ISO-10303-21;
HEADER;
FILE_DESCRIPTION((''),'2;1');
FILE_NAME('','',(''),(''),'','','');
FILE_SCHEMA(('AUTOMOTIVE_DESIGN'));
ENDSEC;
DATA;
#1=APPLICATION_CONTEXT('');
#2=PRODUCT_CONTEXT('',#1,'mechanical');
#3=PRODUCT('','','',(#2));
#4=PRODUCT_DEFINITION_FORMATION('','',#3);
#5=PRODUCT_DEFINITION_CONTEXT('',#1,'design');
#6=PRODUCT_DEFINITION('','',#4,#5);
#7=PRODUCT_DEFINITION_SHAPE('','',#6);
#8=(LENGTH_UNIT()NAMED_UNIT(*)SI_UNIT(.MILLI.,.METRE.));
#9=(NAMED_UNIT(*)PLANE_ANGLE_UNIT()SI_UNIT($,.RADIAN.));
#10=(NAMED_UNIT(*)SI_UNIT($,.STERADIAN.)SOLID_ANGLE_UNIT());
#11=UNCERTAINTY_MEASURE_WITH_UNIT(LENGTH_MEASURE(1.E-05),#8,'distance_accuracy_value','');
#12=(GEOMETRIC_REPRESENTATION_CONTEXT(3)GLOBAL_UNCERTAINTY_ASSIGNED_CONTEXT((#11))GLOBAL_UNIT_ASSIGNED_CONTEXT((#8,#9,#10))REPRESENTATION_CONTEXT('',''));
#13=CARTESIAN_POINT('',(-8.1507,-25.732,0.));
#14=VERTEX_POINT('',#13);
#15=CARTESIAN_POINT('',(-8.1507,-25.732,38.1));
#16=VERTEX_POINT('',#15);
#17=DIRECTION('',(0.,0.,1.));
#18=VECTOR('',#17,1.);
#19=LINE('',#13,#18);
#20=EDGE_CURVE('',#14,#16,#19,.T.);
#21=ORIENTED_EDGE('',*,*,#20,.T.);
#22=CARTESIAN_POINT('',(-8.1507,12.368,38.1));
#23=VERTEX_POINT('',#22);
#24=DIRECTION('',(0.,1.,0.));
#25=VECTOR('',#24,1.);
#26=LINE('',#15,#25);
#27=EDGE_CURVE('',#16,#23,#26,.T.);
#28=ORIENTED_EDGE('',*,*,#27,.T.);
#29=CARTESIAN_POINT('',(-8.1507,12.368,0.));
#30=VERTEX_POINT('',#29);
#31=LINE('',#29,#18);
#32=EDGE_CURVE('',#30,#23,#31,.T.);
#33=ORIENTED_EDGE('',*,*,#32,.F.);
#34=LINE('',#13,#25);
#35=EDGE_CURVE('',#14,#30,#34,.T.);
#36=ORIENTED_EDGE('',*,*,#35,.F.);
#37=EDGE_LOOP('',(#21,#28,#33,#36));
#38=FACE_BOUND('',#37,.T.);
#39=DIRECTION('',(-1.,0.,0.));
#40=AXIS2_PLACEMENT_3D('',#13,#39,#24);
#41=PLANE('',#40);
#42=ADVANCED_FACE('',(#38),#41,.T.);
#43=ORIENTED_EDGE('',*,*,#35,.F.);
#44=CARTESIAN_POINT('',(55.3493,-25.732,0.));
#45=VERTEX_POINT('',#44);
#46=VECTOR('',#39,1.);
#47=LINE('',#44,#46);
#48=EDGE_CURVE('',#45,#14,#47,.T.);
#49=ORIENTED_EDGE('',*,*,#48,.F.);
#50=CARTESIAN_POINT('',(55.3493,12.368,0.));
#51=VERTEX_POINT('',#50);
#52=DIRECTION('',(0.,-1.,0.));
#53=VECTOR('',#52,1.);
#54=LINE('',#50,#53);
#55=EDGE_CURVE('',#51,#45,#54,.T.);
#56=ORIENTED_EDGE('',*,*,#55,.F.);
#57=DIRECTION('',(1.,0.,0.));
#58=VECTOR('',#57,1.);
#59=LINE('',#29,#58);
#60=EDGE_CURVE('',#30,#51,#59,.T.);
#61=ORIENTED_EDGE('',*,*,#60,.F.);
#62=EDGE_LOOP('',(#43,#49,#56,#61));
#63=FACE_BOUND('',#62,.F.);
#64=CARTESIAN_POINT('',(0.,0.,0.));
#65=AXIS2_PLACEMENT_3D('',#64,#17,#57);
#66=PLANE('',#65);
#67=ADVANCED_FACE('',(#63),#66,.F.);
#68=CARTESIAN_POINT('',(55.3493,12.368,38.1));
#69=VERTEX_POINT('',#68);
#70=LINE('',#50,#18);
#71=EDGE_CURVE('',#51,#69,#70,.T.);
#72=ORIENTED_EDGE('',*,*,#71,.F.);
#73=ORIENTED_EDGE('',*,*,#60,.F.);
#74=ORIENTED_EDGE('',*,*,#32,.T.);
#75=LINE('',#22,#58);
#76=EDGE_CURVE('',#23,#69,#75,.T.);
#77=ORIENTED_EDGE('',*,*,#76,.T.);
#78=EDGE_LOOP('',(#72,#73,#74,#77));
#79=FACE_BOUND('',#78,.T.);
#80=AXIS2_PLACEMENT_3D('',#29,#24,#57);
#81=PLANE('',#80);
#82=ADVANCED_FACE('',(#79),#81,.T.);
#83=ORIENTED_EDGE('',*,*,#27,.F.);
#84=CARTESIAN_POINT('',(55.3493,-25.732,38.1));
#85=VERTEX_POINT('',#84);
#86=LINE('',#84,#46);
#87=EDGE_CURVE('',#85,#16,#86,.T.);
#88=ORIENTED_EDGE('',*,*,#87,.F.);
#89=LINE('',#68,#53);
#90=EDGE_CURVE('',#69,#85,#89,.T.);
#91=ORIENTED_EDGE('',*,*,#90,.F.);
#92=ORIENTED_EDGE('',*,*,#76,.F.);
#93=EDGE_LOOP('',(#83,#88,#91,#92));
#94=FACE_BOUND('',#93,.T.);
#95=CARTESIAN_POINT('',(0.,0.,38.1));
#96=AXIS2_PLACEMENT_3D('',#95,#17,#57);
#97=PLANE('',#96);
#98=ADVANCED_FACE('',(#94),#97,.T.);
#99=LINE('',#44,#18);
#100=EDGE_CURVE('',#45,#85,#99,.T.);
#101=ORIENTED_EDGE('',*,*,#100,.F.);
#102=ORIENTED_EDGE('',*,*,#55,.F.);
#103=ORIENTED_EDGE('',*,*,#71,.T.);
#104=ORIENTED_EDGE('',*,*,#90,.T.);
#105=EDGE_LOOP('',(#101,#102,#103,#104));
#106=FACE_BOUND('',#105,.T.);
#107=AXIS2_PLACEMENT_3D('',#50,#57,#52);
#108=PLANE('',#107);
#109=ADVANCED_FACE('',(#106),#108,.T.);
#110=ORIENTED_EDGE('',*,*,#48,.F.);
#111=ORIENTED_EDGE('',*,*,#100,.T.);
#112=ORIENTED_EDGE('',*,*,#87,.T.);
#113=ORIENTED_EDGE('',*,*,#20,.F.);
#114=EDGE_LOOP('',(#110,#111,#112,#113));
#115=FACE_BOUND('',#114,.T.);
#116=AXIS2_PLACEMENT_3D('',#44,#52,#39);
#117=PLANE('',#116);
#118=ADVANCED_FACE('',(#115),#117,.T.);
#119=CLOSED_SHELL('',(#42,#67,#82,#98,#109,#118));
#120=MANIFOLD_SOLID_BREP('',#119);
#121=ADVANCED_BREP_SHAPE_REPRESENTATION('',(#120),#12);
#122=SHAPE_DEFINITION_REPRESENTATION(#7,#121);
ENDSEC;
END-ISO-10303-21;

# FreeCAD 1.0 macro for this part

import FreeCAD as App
import Part
import Sketcher
Q = App.Units.Quantity


def add_polygon(sketch, points):
    """Adds a closed chain of lines whose ends are joined by coincident constraints."""
    first, n = sketch.GeometryCount, len(points)
    for a, b in zip(points, points[1:] + points[:1]):
        sketch.addGeometry(Part.LineSegment(App.Vector(*a, 0), App.Vector(*b, 0)), False)
    for i in range(n):
        sketch.addConstraint(Sketcher.Constraint("Coincident", first + i, 2, first + (i + 1) % n, 1))

doc = App.newDocument("Part")
body = doc.addObject("PartDesign::Body", "Body")

sketch1 = body.newObject("Sketcher::SketchObject", "Sketch")
sketch1.AttachmentSupport = (doc.getObject("XY_Plane"), [""])
sketch1.MapMode = "FlatFace"
add_polygon(sketch1, [(55, 12), (-8, 12), (-8, -26), (55, -26)])
sketch1.addConstraint(Sketcher.Constraint("Horizontal", 0))
sketch1.addConstraint(Sketcher.Constraint("Vertical", 1))
sketch1.addConstraint(Sketcher.Constraint("Horizontal", 2))
sketch1.addConstraint(Sketcher.Constraint("Vertical", 3))
sketch1.addConstraint(Sketcher.Constraint("DistanceX", 0, 2, 0, 1, Q("2.5 in")))
sketch1.addConstraint(Sketcher.Constraint("DistanceY", 1, 2, 1, 1, Q("1.5 in")))
sketch1.addConstraint(Sketcher.Constraint("DistanceX", 0, 2, -1, 1, Q("0.3209 in")))
sketch1.addConstraint(Sketcher.Constraint("DistanceY", -1, 1, 0, 2, Q("12.368 mm")))
pad1 = body.newObject("PartDesign::Pad", "Pad")
pad1.Profile = sketch1
pad1.Length = Q("1.5 in")

doc.recompute()
